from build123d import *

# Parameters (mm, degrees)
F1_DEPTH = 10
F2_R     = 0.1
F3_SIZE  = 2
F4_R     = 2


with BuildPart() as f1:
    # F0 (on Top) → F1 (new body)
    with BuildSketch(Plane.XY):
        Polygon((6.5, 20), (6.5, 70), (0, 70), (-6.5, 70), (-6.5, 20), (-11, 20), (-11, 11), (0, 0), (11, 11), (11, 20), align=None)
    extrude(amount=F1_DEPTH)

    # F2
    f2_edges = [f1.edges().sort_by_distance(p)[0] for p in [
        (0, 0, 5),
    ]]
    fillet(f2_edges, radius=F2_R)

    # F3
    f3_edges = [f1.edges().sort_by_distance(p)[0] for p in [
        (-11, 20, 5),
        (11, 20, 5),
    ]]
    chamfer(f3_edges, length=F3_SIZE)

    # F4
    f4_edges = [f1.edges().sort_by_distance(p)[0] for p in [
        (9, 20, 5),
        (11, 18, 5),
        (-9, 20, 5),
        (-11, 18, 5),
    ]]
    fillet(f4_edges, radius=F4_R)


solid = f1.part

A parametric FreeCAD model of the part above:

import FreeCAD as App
import Part
import Sketcher
from FreeCAD import Vector


def edges_at(feature, points):
    """Names of the edges that pass closest to the given points."""
    edges = feature.Shape.Edges
    near = lambda p: min(range(len(edges)), key=lambda i: edges[i].distToShape(Part.Vertex(*p))[0])
    return sorted({f"Edge{near(p) + 1}" for p in points})

doc = App.newDocument("Part")
body = doc.addObject("PartDesign::Body", "Body")

# Sketch on XY plane
sketch1 = body.newObject("Sketcher::SketchObject", "Sketch")
sketch1.AttachmentSupport = (doc.getObject("XY_Plane"), [""])
sketch1.MapMode = "FlatFace"
sketch1.addGeometry([
    Part.LineSegment(Vector(6.5, 20, 0), Vector(6.5, 70, 0)),  # 0
    Part.LineSegment(Vector(6.5, 70, 0), Vector(-6.5, 70, 0)),  # 1
    Part.LineSegment(Vector(-6.5, 70, 0), Vector(-6.5, 20, 0)),  # 2
    Part.LineSegment(Vector(-6.5, 20, 0), Vector(-11, 20, 0)),  # 3
    Part.LineSegment(Vector(-11, 20, 0), Vector(-11, 11, 0)),  # 4
    Part.LineSegment(Vector(-11, 11, 0), Vector(0, 0, 0)),  # 5
    Part.LineSegment(Vector(0, 0, 0), Vector(11, 11, 0)),  # 6
    Part.LineSegment(Vector(11, 11, 0), Vector(11, 20, 0)),  # 7
    Part.LineSegment(Vector(11, 20, 0), Vector(6.5, 20, 0)),  # 8
], False)
sketch1.addConstraint([
    Sketcher.Constraint("Coincident", 0, 2, 1, 1),
    Sketcher.Constraint("Coincident", 1, 2, 2, 1),
    Sketcher.Constraint("Coincident", 2, 2, 3, 1),
    Sketcher.Constraint("Coincident", 3, 2, 4, 1),
    Sketcher.Constraint("Coincident", 4, 2, 5, 1),
    Sketcher.Constraint("Coincident", 5, 2, 6, 1),
    Sketcher.Constraint("Coincident", 6, 2, 7, 1),
    Sketcher.Constraint("Coincident", 7, 2, 8, 1),
    Sketcher.Constraint("Coincident", 8, 2, 0, 1),
    Sketcher.Constraint("Vertical", 0),
    Sketcher.Constraint("Horizontal", 1),
    Sketcher.Constraint("Vertical", 2),
    Sketcher.Constraint("Horizontal", 3),
    Sketcher.Constraint("Vertical", 4),
    Sketcher.Constraint("Vertical", 7),
    Sketcher.Constraint("Horizontal", 8),
    Sketcher.Constraint("Coincident", 5, 2, -1, 1),
    Sketcher.Constraint("Symmetric", 4, 2, 6, 2, -2),
    Sketcher.Constraint("Symmetric", 2, 2, 8, 2, -2),
    Sketcher.Constraint("Perpendicular", 5, 6),
    Sketcher.Constraint("DistanceX", 1, 2, 1, 1, 13.0),
    Sketcher.Constraint("DistanceY", 0, 1, 0, 2, 50.0),
    Sketcher.Constraint("DistanceY", 4, 2, 4, 1, 9.0),
    Sketcher.Constraint("DistanceX", 3, 2, 3, 1, 4.5),
])
pad1 = body.newObject("PartDesign::Pad", "Pad")
pad1.Profile = sketch1
pad1.Length = 10
doc.recompute()

fillet = body.newObject("PartDesign::Fillet", "Fillet")
fillet.Base = (pad1, edges_at(pad1, [(0, 0, 5)]))
fillet.Radius = 0.1
doc.recompute()

chamfer = body.newObject("PartDesign::Chamfer", "Chamfer")
chamfer.Base = (fillet, edges_at(fillet, [(-11, 20, 5), (11, 20, 5)]))
chamfer.Size = 2
doc.recompute()

fillet2 = body.newObject("PartDesign::Fillet", "Fillet001")
fillet2.Base = (chamfer, edges_at(chamfer, [
    (9, 20, 5),
    (11, 18, 5),
    (-9, 20, 5),
    (-11, 18, 5),
]))
fillet2.Radius = 2

doc.recompute()
